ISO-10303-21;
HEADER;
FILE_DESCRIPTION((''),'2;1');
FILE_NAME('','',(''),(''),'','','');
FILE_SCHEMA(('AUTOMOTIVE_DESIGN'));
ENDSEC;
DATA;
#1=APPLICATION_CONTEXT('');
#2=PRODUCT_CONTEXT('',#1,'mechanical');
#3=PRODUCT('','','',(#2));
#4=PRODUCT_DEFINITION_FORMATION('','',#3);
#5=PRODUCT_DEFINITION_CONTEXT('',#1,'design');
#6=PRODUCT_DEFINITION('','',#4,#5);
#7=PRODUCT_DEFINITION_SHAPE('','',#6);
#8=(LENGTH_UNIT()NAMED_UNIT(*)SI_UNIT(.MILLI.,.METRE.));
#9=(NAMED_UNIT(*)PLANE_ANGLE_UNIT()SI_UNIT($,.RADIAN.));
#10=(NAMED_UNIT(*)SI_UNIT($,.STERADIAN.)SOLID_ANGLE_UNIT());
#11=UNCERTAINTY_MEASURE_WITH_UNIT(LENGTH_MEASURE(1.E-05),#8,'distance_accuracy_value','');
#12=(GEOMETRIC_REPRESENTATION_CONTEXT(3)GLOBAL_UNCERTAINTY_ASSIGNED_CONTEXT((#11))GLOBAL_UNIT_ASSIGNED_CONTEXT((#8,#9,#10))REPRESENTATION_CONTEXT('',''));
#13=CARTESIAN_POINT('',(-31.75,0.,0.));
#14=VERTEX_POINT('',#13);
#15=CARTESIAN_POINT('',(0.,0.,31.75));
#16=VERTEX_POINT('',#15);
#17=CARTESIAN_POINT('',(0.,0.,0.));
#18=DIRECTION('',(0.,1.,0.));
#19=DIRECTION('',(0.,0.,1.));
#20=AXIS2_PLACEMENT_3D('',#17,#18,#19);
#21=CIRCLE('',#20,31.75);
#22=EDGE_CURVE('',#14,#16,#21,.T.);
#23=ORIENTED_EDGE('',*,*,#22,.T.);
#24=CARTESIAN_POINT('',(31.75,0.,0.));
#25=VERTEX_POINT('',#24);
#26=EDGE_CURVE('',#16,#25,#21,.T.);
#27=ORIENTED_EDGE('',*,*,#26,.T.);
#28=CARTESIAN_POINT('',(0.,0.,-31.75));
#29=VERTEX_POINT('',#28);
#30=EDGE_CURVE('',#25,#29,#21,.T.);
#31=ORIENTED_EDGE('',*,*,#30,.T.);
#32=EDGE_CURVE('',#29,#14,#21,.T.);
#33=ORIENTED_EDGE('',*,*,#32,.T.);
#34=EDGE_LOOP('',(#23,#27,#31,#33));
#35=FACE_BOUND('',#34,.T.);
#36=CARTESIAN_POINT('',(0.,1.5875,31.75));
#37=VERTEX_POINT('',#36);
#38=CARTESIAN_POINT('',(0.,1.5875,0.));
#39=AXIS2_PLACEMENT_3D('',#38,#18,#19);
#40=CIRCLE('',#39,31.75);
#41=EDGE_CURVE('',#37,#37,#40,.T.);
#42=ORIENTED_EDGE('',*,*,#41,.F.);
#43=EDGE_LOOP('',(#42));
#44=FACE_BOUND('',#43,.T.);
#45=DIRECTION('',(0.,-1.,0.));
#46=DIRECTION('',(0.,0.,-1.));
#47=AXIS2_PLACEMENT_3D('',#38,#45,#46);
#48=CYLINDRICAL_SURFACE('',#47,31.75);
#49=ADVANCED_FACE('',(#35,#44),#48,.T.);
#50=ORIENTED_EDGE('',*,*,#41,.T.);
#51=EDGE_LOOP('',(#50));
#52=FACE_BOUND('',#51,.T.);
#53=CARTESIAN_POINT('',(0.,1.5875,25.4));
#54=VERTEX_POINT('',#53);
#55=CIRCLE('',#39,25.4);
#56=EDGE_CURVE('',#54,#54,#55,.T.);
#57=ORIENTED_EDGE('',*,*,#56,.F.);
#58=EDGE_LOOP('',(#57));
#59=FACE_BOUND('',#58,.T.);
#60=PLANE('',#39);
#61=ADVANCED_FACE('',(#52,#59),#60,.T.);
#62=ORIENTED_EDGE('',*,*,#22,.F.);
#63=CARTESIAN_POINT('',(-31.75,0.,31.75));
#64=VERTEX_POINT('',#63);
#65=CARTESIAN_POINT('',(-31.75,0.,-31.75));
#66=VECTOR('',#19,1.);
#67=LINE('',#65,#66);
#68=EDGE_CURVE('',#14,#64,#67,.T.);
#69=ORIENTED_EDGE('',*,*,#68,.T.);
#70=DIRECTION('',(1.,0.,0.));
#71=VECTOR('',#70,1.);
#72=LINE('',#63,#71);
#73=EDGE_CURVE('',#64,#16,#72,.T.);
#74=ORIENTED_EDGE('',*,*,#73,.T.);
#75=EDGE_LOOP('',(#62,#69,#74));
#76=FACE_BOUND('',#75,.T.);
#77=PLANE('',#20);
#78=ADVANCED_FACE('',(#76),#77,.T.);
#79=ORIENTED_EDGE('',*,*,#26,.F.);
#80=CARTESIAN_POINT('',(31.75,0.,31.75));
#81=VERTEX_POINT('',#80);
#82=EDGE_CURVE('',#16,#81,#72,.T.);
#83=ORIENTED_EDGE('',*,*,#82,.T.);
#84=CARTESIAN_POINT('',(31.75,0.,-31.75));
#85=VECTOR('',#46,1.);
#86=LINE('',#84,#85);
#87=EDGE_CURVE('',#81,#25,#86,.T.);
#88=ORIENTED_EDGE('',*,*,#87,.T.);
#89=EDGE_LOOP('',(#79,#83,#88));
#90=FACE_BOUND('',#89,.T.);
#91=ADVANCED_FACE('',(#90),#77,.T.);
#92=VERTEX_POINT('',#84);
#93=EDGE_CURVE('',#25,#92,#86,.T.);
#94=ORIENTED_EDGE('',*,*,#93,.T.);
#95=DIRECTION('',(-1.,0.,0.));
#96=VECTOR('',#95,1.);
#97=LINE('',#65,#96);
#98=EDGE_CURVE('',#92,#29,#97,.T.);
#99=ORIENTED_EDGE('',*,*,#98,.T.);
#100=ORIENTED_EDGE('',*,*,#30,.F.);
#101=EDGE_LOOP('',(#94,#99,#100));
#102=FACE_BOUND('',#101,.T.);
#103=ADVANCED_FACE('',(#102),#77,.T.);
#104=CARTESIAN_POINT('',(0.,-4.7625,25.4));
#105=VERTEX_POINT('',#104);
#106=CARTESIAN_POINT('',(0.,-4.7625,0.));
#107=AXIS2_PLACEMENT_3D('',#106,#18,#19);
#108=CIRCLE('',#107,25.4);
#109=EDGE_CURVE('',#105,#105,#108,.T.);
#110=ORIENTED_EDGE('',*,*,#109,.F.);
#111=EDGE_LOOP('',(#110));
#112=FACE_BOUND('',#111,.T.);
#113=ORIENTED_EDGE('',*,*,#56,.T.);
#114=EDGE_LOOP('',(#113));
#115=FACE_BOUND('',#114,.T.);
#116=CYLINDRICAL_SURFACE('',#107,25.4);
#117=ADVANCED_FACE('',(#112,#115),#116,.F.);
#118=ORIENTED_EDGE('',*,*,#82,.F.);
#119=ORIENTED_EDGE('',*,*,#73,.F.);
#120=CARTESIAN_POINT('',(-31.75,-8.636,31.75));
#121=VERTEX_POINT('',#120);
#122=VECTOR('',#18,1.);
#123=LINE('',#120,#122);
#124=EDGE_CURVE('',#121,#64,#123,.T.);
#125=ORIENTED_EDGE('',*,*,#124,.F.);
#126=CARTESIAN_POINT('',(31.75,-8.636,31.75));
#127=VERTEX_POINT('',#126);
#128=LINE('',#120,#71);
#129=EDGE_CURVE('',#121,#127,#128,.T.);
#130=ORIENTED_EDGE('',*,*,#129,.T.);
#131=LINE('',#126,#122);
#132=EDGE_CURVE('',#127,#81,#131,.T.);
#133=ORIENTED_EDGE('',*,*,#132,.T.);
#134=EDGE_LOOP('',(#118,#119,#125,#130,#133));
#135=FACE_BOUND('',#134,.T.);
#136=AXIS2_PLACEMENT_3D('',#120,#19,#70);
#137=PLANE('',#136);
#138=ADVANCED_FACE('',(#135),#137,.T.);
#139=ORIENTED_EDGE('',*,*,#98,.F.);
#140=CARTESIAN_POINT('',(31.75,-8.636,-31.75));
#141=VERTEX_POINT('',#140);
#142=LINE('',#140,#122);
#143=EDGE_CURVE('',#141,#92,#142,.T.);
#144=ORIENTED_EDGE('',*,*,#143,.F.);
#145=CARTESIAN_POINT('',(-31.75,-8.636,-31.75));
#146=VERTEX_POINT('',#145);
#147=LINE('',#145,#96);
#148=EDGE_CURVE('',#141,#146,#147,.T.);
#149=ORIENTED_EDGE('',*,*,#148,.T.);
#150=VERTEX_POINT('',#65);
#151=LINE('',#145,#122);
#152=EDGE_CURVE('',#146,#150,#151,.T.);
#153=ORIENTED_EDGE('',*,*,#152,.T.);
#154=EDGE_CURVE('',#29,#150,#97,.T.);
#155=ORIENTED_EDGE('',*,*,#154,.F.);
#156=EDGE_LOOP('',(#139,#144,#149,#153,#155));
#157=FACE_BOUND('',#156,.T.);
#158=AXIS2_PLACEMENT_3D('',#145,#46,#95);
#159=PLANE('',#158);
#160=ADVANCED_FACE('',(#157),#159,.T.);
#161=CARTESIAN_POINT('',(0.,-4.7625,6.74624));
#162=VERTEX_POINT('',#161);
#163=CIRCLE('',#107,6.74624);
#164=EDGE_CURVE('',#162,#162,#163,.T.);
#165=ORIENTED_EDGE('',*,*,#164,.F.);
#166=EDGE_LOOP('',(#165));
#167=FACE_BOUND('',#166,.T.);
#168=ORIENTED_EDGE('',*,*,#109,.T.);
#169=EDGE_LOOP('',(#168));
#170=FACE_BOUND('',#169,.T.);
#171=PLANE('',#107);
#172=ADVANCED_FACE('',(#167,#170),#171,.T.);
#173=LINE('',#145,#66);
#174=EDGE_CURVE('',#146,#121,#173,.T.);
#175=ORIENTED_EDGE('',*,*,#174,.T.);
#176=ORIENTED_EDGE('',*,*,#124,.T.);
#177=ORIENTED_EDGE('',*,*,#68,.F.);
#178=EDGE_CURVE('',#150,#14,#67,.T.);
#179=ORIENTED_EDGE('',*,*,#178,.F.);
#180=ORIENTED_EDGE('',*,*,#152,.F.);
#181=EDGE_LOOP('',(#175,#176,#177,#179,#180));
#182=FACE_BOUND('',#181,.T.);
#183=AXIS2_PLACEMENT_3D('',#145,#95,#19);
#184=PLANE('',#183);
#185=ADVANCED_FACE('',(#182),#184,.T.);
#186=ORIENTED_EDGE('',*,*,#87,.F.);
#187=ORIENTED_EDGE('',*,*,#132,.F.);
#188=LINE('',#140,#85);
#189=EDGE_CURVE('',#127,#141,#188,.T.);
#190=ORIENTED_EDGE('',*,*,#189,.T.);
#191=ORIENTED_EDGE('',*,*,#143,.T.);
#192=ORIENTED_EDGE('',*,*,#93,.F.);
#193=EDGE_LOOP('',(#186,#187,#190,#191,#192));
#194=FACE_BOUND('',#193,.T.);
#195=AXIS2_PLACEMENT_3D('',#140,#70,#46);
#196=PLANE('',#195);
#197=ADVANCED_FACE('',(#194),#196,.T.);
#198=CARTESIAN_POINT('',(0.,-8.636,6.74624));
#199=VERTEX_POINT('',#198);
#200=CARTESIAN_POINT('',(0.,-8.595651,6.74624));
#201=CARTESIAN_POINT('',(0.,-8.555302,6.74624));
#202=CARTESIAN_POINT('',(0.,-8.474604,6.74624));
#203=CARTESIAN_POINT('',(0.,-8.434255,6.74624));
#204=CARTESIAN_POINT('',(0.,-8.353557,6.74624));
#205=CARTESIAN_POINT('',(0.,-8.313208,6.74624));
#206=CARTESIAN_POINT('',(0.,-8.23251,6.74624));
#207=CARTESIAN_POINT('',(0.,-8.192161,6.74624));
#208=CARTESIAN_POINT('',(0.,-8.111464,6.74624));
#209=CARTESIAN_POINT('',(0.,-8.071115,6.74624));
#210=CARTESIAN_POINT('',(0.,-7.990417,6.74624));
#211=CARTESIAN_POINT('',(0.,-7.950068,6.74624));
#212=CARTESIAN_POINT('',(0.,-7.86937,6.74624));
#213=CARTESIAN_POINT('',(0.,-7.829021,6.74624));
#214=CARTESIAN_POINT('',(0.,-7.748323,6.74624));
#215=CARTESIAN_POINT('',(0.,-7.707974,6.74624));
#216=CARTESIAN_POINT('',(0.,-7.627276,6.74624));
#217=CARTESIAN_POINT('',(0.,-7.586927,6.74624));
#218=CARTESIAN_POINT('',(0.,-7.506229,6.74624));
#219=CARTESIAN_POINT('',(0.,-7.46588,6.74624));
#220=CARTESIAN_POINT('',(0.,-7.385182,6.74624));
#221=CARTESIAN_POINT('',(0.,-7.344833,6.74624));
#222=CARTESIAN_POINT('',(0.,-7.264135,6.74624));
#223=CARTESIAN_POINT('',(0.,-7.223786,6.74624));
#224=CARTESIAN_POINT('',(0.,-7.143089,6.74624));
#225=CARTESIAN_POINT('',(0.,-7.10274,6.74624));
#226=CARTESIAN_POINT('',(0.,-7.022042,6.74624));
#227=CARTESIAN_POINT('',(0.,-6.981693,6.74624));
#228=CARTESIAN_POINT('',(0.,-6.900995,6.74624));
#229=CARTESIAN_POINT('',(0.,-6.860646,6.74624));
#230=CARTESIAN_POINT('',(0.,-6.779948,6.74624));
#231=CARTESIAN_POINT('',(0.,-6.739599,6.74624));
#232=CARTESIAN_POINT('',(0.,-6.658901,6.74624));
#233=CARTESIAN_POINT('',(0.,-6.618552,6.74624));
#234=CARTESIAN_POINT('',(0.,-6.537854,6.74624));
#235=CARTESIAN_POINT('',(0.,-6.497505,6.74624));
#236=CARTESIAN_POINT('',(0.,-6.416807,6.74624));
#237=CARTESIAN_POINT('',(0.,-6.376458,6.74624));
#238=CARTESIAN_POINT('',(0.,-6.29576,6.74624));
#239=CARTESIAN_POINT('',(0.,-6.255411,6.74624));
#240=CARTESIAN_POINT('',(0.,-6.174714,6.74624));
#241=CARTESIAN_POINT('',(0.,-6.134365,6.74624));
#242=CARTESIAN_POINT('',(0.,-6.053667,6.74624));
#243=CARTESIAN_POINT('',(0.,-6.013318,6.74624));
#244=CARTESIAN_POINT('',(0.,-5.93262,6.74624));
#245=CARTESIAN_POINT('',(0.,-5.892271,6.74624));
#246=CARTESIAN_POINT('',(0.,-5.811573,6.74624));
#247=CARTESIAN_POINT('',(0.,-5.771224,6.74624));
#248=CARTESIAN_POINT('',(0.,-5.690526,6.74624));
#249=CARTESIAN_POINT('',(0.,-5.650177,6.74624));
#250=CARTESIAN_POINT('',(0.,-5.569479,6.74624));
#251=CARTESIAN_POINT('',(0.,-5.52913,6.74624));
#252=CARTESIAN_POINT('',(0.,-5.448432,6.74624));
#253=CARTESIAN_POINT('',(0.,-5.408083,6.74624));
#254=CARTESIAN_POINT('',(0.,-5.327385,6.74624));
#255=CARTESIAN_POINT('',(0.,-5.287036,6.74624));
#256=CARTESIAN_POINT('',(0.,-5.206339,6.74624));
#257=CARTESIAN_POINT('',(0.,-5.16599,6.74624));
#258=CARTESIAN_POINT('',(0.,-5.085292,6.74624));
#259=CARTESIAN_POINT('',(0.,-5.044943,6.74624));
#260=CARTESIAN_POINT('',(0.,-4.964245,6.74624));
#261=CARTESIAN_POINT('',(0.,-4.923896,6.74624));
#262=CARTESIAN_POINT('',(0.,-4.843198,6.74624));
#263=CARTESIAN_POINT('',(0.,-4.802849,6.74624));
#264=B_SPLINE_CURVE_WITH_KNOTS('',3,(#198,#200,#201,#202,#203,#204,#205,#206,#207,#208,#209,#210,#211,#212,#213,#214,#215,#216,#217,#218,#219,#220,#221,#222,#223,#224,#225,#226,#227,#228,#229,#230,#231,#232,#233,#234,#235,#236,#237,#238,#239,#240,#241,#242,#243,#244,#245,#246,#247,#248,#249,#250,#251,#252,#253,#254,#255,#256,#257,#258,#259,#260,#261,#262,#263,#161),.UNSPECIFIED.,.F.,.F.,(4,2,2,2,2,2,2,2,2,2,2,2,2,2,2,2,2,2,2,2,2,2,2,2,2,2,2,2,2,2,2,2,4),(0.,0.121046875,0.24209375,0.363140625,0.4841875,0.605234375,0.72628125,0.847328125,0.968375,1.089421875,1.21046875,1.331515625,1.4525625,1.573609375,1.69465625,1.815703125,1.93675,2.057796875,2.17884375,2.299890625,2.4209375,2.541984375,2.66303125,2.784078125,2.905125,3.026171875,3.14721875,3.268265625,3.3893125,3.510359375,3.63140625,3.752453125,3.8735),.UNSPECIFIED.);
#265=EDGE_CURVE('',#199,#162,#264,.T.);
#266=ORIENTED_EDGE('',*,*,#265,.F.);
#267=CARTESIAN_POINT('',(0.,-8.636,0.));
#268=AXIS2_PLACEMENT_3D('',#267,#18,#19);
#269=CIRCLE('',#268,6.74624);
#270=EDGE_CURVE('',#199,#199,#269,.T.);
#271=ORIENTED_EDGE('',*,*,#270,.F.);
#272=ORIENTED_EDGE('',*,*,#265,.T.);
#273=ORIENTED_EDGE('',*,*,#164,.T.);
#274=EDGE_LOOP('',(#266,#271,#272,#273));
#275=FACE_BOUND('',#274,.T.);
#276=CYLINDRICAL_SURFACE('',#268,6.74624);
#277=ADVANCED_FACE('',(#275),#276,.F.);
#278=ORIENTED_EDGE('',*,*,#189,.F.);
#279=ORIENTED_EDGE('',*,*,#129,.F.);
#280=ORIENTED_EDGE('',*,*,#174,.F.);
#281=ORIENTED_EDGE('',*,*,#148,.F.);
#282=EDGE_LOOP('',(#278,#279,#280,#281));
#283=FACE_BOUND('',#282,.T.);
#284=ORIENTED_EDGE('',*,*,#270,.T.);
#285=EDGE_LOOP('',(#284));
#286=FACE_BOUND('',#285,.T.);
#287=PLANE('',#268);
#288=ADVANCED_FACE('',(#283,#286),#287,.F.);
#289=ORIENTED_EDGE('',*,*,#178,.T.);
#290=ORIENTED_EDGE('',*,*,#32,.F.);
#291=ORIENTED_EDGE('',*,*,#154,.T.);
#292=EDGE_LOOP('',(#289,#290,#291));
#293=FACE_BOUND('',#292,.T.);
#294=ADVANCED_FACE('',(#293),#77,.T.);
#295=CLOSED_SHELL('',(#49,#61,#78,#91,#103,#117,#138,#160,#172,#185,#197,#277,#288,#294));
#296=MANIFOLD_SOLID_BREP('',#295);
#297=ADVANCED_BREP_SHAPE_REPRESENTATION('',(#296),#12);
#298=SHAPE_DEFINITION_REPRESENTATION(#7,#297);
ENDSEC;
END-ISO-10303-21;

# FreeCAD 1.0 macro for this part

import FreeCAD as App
import Part
import Sketcher

V = App.Vector
Q = App.Units.Quantity


def add_polygon(sketch, points):
    """Adds a closed chain of lines whose ends are joined by coincident constraints."""
    first, n = sketch.GeometryCount, len(points)
    for a, b in zip(points, points[1:] + points[:1]):
        sketch.addGeometry(Part.LineSegment(App.Vector(*a, 0), App.Vector(*b, 0)), False)
    for i in range(n):
        sketch.addConstraint(Sketcher.Constraint("Coincident", first + i, 2, first + (i + 1) % n, 1))

doc = App.newDocument("Part")
params = doc.addObject("Spreadsheet::Sheet", "Params")
for row, (alias, value) in enumerate([
    ("sketch1_width", "2.5 in"),
    ("pad1_length", "0.34 in"),
    ("sketch2_diameter", "2.5 in"),
    ("pad2_length", "0.0625 in"),
    ("sketch3_diameter", "2 in"),
    ("pocket1_length", "0.25 in"),
], start=1):
    params.set(f"A{row}", alias)
    params.set(f"B{row}", "=" + value)
    params.setAlias(f"B{row}", alias)

body = doc.addObject("PartDesign::Body", "Body")

# Sketch on XZ plane
sketch1 = doc.addObject("Sketcher::SketchObject", "Sketch")
body.addObject(sketch1)
sketch1.AttachmentSupport = (doc.XZ_Plane, [""])
sketch1.MapMode = "FlatFace"
add_polygon(sketch1, [(-31.75, -31.75), (-31.75, 31.75), (31.75, 31.75), (31.75, -31.75)])  # lines 0-3
sketch1.addConstraint([
    Sketcher.Constraint("Vertical", 0),
    Sketcher.Constraint("Horizontal", 1),
    Sketcher.Constraint("Vertical", 2),
    Sketcher.Constraint("Horizontal", 3),
    Sketcher.Constraint("Symmetric", 0, 2, 2, 2, -1, 1),
    Sketcher.Constraint("Equal", 3, 0),
    Sketcher.Constraint("DistanceX", 1, 1, 1, 2, Q("2.5 in")),
])
sketch1.setExpression("Constraints[10]", "Params.sketch1_width")
pad1 = doc.addObject("PartDesign::Pad", "Pad")
body.addObject(pad1)
pad1.Profile = sketch1
pad1.setExpression("Length", "Params.pad1_length")

# Sketch on XZ plane
sketch2 = doc.addObject("Sketcher::SketchObject", "Sketch001")
body.addObject(sketch2)
sketch2.AttachmentSupport = (doc.XZ_Plane, [""])
sketch2.MapMode = "FlatFace"
sketch2.addGeometry(Part.Circle(V(0, 0, 0), V(0, 0, 1), 31.75), False)
sketch2.addConstraint([
    Sketcher.Constraint("Coincident", 0, 3, -1, 1),
    Sketcher.Constraint("Diameter", 0, Q("2.5 in")),
])
sketch2.setExpression("Constraints[1]", "Params.sketch2_diameter")
pad2 = doc.addObject("PartDesign::Pad", "Pad001")
body.addObject(pad2)
pad2.Profile = sketch2
pad2.setExpression("Length", "Params.pad2_length")
pad2.Reversed = True

# Sketch on XZ plane
sketch3 = doc.addObject("Sketcher::SketchObject", "Sketch002")
body.addObject(sketch3)
sketch3.AttachmentSupport = (doc.XZ_Plane, [""])
sketch3.MapMode = "FlatFace"
sketch3.AttachmentOffset = App.Placement(V(0, 0, -0.0625 * 25.4), App.Rotation())
sketch3.addGeometry(Part.Circle(V(0, 0, 0), V(0, 0, 1), 25.4), False)
sketch3.addConstraint([
    Sketcher.Constraint("Coincident", 0, 3, -1, 1),
    Sketcher.Constraint("Diameter", 0, Q("2 in")),
])
sketch3.setExpression("Constraints[1]", "Params.sketch3_diameter")
pocket1 = doc.addObject("PartDesign::Pocket", "Pocket")
body.addObject(pocket1)
pocket1.Profile = sketch3
pocket1.setExpression("Length", "Params.pocket1_length")
pocket1.Reversed = True

# Sketch on XZ plane
sketch4 = doc.addObject("Sketcher::SketchObject", "Sketch003")
body.addObject(sketch4)
sketch4.AttachmentSupport = (doc.XZ_Plane, [""])
sketch4.MapMode = "FlatFace"
sketch4.AttachmentOffset = App.Placement(V(0, 0, 0.1875 * 25.4), App.Rotation())
sketch4.addGeometry(Part.Circle(V(0, 0, 0), V(0, 0, 1), 6.74624), False)
sketch4.addConstraint([
    Sketcher.Constraint("Coincident", 0, 3, -1, 1),
    Sketcher.Constraint("Diameter", 0, Q("0.5312 in")),
])
pocket2 = doc.addObject("PartDesign::Pocket", "Pocket001")
body.addObject(pocket2)
pocket2.Profile = sketch4
pocket2.Type = "ThroughAll"
pocket2.Reversed = True

doc.recompute()
